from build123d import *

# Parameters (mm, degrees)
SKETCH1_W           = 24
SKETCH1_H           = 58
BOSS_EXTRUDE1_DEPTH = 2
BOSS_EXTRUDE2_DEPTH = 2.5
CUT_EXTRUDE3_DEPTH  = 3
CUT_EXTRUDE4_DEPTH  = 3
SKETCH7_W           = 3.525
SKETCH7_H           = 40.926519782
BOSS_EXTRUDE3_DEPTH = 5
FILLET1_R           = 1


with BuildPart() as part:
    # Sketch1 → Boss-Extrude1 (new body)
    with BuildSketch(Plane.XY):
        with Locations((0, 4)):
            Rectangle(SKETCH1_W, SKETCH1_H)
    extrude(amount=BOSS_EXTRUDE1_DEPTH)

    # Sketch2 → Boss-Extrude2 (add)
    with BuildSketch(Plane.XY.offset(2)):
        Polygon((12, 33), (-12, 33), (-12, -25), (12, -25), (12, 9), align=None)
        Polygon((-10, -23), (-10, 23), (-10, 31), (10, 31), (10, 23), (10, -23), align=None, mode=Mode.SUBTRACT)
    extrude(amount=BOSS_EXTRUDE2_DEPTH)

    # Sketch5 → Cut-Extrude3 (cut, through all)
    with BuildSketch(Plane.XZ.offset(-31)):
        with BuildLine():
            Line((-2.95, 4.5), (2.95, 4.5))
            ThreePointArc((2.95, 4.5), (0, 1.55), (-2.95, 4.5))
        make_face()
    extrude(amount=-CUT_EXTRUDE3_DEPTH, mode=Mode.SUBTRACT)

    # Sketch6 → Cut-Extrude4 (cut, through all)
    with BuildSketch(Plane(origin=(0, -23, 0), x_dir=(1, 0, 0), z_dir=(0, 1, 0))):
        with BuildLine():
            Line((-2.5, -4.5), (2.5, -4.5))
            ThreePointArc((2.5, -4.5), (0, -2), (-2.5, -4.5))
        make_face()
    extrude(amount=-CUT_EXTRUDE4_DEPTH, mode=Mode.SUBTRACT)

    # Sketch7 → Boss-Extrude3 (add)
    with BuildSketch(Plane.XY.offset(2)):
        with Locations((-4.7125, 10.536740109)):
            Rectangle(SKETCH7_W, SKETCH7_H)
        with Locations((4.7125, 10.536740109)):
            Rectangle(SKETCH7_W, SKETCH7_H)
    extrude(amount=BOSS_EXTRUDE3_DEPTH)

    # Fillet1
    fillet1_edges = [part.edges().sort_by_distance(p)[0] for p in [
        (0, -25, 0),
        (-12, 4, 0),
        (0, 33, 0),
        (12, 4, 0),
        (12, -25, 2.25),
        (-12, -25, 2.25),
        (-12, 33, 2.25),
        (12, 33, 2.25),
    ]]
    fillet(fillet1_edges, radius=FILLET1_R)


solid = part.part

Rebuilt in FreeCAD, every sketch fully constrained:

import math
import FreeCAD as App
import Part
import Sketcher
from FreeCAD import Vector


def edges_at(feature, points):
    """Names of the edges that pass closest to the given points."""
    edges = feature.Shape.Edges
    near = lambda p: min(range(len(edges)), key=lambda i: edges[i].distToShape(Part.Vertex(*p))[0])
    return sorted({f"Edge{near(p) + 1}" for p in points})


def add_polygon(sketch, points):
    """Adds a closed chain of lines whose ends are joined by coincident constraints."""
    first, n = sketch.GeometryCount, len(points)
    for a, b in zip(points, points[1:] + points[:1]):
        sketch.addGeometry(Part.LineSegment(App.Vector(*a, 0), App.Vector(*b, 0)), False)
    for i in range(n):
        sketch.addConstraint(Sketcher.Constraint("Coincident", first + i, 2, first + (i + 1) % n, 1))

doc = App.newDocument("Part")
body = doc.addObject("PartDesign::Body", "Body")

# Sketch on XY plane
sketch1 = body.newObject("Sketcher::SketchObject", "Sketch")
sketch1.AttachmentSupport = (doc.getObject("XY_Plane"), [""])
sketch1.MapMode = "FlatFace"
add_polygon(sketch1, [(-12, 33), (-12, -25), (12, -25), (12, 33)])  # lines 0-3
sketch1.addConstraint([
    Sketcher.Constraint("Vertical", 0),
    Sketcher.Constraint("Horizontal", 1),
    Sketcher.Constraint("Vertical", 2),
    Sketcher.Constraint("Horizontal", 3),
    Sketcher.Constraint("DistanceX", 1, 1, 1, 2, 24.0),
    Sketcher.Constraint("DistanceY", 0, 2, 0, 1, 58.0),
    Sketcher.Constraint("DistanceX", 0, 2, -1, 1, 12.0),
    Sketcher.Constraint("DistanceY", 0, 2, -1, 1, 25.0),
])
pad1 = body.newObject("PartDesign::Pad", "Pad")
pad1.Profile = sketch1
pad1.Length = 2

# Sketch on XY plane
sketch2 = body.newObject("Sketcher::SketchObject", "Sketch001")
sketch2.AttachmentSupport = (doc.getObject("XY_Plane"), [""])
sketch2.MapMode = "FlatFace"
sketch2.AttachmentOffset = App.Placement(Vector(0, 0, 2), App.Rotation())
add_polygon(sketch2, [(12, 33), (-12, 33), (-12, -25), (12, -25)])  # lines 0-3
add_polygon(sketch2, [(10, -23), (-10, -23), (-10, 31), (10, 31)])  # lines 4-7
sketch2.addConstraint([
    Sketcher.Constraint("Horizontal", 0),
    Sketcher.Constraint("Vertical", 1),
    Sketcher.Constraint("Horizontal", 2),
    Sketcher.Constraint("Vertical", 3),
    Sketcher.Constraint("Horizontal", 4),
    Sketcher.Constraint("Vertical", 5),
    Sketcher.Constraint("Horizontal", 6),
    Sketcher.Constraint("Vertical", 7),
    Sketcher.Constraint("DistanceX", 0, 2, 0, 1, 24.0),
    Sketcher.Constraint("DistanceX", 4, 2, 4, 1, 20.0),
    Sketcher.Constraint("DistanceY", 1, 2, 1, 1, 58.0),
    Sketcher.Constraint("DistanceY", 5, 1, 5, 2, 54.0),
    Sketcher.Constraint("DistanceX", 0, 2, -1, 1, 12.0),
    Sketcher.Constraint("DistanceY", -1, 1, 0, 2, 33.0),
    Sketcher.Constraint("DistanceX", 4, 2, -1, 1, 10.0),
    Sketcher.Constraint("DistanceY", 4, 2, -1, 1, 23.0),
])
pad2 = body.newObject("PartDesign::Pad", "Pad001")
pad2.Profile = sketch2
pad2.Length = 2.5

# Sketch on XZ plane
sketch3 = body.newObject("Sketcher::SketchObject", "Sketch002")
sketch3.AttachmentSupport = (doc.getObject("XZ_Plane"), [""])
sketch3.MapMode = "FlatFace"
sketch3.AttachmentOffset = App.Placement(Vector(0, 0, -31), App.Rotation())
sketch3.addGeometry([
    Part.LineSegment(Vector(3, 4.5, 0), Vector(-3, 4.5, 0)),
    Part.ArcOfCircle(Part.Circle(Vector(0, 4.5, 0), Vector(0, 0, 1), 3), math.radians(180), math.radians(360)),
], False)
sketch3.addConstraint([
    Sketcher.Constraint("Coincident", 0, 1, 1, 2),
    Sketcher.Constraint("Coincident", 1, 1, 0, 2),
    Sketcher.Constraint("Horizontal", 0),
    Sketcher.Constraint("PointOnObject", 1, 3, -2),
    Sketcher.Constraint("Horizontal", 1, 3, 0, 1),
    Sketcher.Constraint("Radius", 1, 2.95),
    Sketcher.Constraint("DistanceY", -1, 1, 1, 3, 4.5),
])
pocket1 = body.newObject("PartDesign::Pocket", "Pocket")
pocket1.Profile = sketch3
pocket1.Type = "ThroughAll"

# Sketch on XZ plane
sketch4 = body.newObject("Sketcher::SketchObject", "Sketch003")
sketch4.AttachmentSupport = (doc.getObject("XZ_Plane"), [""])
sketch4.MapMode = "FlatFace"
sketch4.AttachmentOffset = App.Placement(Vector(0, 0, 23), App.Rotation())
sketch4.addGeometry([
    Part.LineSegment(Vector(-2.5, 4.5, 0), Vector(2.5, 4.5, 0)),
    Part.ArcOfCircle(Part.Circle(Vector(0, 4.5, 0), Vector(0, 0, 1), 2.5), math.radians(180), math.radians(360)),
], False)
sketch4.addConstraint([
    Sketcher.Constraint("Coincident", 0, 1, 1, 1),
    Sketcher.Constraint("Coincident", 1, 2, 0, 2),
    Sketcher.Constraint("Horizontal", 0),
    Sketcher.Constraint("PointOnObject", 1, 3, -2),
    Sketcher.Constraint("Horizontal", 1, 3, 0, 1),
    Sketcher.Constraint("Radius", 1, 2.5),
    Sketcher.Constraint("DistanceY", -1, 1, 1, 3, 4.5),
])
pocket2 = body.newObject("PartDesign::Pocket", "Pocket001")
pocket2.Profile = sketch4
pocket2.Type = "ThroughAll"
pocket2.Reversed = True

# Sketch on XY plane
sketch5 = body.newObject("Sketcher::SketchObject", "Sketch004")
sketch5.AttachmentSupport = (doc.getObject("XY_Plane"), [""])
sketch5.MapMode = "FlatFace"
sketch5.AttachmentOffset = App.Placement(Vector(0, 0, 2), App.Rotation())
add_polygon(sketch5, [(-6.5, 31), (-6.5, -9.9), (-3, -9.9), (-3, 31)])  # lines 0-3
add_polygon(sketch5, [(3, 31), (3, -9.9), (6.5, -9.9), (6.5, 31)])  # lines 4-7
sketch5.addConstraint([
    Sketcher.Constraint("Vertical", 0),
    Sketcher.Constraint("Horizontal", 1),
    Sketcher.Constraint("Vertical", 2),
    Sketcher.Constraint("Horizontal", 3),
    Sketcher.Constraint("Vertical", 4),
    Sketcher.Constraint("Horizontal", 5),
    Sketcher.Constraint("Vertical", 6),
    Sketcher.Constraint("Horizontal", 7),
    Sketcher.Constraint("Symmetric", 1, 2, 4, 2, -2),
    Sketcher.Constraint("Symmetric", 3, 2, 6, 2, -2),
    Sketcher.Constraint("DistanceY", -1, 1, 2, 2, 31.0),
    Sketcher.Constraint("DistanceX", 1, 2, 4, 2, 5.9),
    Sketcher.Constraint("DistanceX", 1, 1, 1, 2, 3.525),
    Sketcher.Constraint("DistanceY", 0, 2, 0, 1, 40.92652),
])
pad3 = body.newObject("PartDesign::Pad", "Pad002")
pad3.Profile = sketch5
pad3.Length = 5
doc.recompute()

fillet = body.newObject("PartDesign::Fillet", "Fillet")
fillet.Base = (pad3, edges_at(pad3, [
    (0, -25, 0),
    (-12, 4, 0),
    (0, 33, 0),
    (12, 4, 0),
    (12, -25, 2.25),
    (-12, -25, 2.25),
    (-12, 33, 2.25),
    (12, 33, 2.25),
]))
fillet.Radius = 1

doc.recompute()
